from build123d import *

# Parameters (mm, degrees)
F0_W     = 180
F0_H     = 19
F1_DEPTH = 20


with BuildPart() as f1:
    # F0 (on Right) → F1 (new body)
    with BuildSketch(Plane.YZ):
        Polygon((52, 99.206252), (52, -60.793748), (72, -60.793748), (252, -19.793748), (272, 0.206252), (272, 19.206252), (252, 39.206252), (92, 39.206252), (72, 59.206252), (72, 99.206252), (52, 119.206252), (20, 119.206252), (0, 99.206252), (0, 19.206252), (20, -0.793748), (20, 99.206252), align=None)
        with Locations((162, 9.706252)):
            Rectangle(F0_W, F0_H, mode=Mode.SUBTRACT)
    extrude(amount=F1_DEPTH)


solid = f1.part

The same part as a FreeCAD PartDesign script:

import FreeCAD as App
import Part
import Sketcher
from FreeCAD import Vector
Q = App.Units.Quantity


def add_polygon(sketch, points):
    """Adds a closed chain of lines whose ends are joined by coincident constraints."""
    first, n = sketch.GeometryCount, len(points)
    for a, b in zip(points, points[1:] + points[:1]):
        sketch.addGeometry(Part.LineSegment(App.Vector(*a, 0), App.Vector(*b, 0)), False)
    for i in range(n):
        sketch.addConstraint(Sketcher.Constraint("Coincident", first + i, 2, first + (i + 1) % n, 1))

doc = App.newDocument("Part")
body = doc.addObject("PartDesign::Body", "Body")

# Sketch on YZ plane
sketch1 = body.newObject("Sketcher::SketchObject", "Sketch")
sketch1.AttachmentSupport = (doc.getObject("YZ_Plane"), [""])
sketch1.MapMode = "FlatFace"
add_polygon(sketch1, [(52, 99.206252), (52, -60.793748), (72, -60.793748), (252, -19.793748), (272, 0.206252), (272, 19.206252), (252, 39.206252), (92, 39.206252), (72, 59.206252), (72, 99.206252), (52, 119.206252), (20, 119.206252), (0, 99.206252), (0, 19.206252), (20, -0.793748), (20, 99.206252)])  # lines 0-15
add_polygon(sketch1, [(252, 0.206252), (72, 0.206252), (72, 19.206252), (252, 19.206252)])  # lines 16-19
sketch1.addConstraint([
    Sketcher.Constraint("Vertical", 0),
    Sketcher.Constraint("Horizontal", 1),
    Sketcher.Constraint("Vertical", 4),
    Sketcher.Constraint("Horizontal", 6),
    Sketcher.Constraint("Vertical", 8),
    Sketcher.Constraint("Horizontal", 10),
    Sketcher.Constraint("Vertical", 12),
    Sketcher.Constraint("Vertical", 14),
    Sketcher.Constraint("Horizontal", 15),
    Sketcher.Constraint("Horizontal", 16),
    Sketcher.Constraint("Vertical", 17),
    Sketcher.Constraint("Horizontal", 18),
    Sketcher.Constraint("Vertical", 19),
    Sketcher.Constraint("PointOnObject", 11, 2, -2),
    Sketcher.Constraint("Perpendicular", 3, 5),
    Sketcher.Constraint("Parallel", 5, 7),
    Sketcher.Constraint("Parallel", 7, 9),
    Sketcher.Constraint("Perpendicular", 9, 11),
    Sketcher.Constraint("Perpendicular", 11, 13),
    Sketcher.Constraint("Horizontal", 8, 2, 11, 2),
    Sketcher.Constraint("Horizontal", 4, 2, 12, 2),
    Sketcher.Constraint("Horizontal", 11, 2, 14, 2),
    Sketcher.Constraint("Horizontal", 3, 2, 16, 2),
    Sketcher.Constraint("Horizontal", 12, 2, 17, 2),
    Sketcher.Constraint("Vertical", 2, 2, 5, 2),
    Sketcher.Constraint("Vertical", 1, 2, 7, 2),
    Sketcher.Constraint("Vertical", 0, 2, 9, 2),
    Sketcher.Constraint("Vertical", 10, 2, 13, 2),
    Sketcher.Constraint("Vertical", 8, 2, 16, 2),
    Sketcher.Constraint("Vertical", 5, 2, 18, 2),
    Sketcher.Constraint("Equal", 6, 0),
    Sketcher.Constraint("Equal", 3, 5),
    Sketcher.Constraint("Equal", 5, 7),
    Sketcher.Constraint("Equal", 7, 9),
    Sketcher.Constraint("DistanceX", 1, 1, 1, 2, Q("20 mm")),
    Sketcher.Constraint("DistanceX", 6, 2, 6, 1, Q("160 mm")),
    Sketcher.Constraint("DistanceX", 10, 2, 10, 1, Q("32 mm")),
    Sketcher.Constraint("DistanceY", 4, 1, 4, 2, Q("19 mm")),
    Sketcher.Constraint("DistanceY", 8, 1, 8, 2, Q("40 mm")),
    Sketcher.Constraint("DistanceY", 2, 2, -1, 1, Q("19.793748 mm")),
])
pad1 = body.newObject("PartDesign::Pad", "Pad")
pad1.Profile = sketch1
pad1.Length = 20

doc.recompute()
